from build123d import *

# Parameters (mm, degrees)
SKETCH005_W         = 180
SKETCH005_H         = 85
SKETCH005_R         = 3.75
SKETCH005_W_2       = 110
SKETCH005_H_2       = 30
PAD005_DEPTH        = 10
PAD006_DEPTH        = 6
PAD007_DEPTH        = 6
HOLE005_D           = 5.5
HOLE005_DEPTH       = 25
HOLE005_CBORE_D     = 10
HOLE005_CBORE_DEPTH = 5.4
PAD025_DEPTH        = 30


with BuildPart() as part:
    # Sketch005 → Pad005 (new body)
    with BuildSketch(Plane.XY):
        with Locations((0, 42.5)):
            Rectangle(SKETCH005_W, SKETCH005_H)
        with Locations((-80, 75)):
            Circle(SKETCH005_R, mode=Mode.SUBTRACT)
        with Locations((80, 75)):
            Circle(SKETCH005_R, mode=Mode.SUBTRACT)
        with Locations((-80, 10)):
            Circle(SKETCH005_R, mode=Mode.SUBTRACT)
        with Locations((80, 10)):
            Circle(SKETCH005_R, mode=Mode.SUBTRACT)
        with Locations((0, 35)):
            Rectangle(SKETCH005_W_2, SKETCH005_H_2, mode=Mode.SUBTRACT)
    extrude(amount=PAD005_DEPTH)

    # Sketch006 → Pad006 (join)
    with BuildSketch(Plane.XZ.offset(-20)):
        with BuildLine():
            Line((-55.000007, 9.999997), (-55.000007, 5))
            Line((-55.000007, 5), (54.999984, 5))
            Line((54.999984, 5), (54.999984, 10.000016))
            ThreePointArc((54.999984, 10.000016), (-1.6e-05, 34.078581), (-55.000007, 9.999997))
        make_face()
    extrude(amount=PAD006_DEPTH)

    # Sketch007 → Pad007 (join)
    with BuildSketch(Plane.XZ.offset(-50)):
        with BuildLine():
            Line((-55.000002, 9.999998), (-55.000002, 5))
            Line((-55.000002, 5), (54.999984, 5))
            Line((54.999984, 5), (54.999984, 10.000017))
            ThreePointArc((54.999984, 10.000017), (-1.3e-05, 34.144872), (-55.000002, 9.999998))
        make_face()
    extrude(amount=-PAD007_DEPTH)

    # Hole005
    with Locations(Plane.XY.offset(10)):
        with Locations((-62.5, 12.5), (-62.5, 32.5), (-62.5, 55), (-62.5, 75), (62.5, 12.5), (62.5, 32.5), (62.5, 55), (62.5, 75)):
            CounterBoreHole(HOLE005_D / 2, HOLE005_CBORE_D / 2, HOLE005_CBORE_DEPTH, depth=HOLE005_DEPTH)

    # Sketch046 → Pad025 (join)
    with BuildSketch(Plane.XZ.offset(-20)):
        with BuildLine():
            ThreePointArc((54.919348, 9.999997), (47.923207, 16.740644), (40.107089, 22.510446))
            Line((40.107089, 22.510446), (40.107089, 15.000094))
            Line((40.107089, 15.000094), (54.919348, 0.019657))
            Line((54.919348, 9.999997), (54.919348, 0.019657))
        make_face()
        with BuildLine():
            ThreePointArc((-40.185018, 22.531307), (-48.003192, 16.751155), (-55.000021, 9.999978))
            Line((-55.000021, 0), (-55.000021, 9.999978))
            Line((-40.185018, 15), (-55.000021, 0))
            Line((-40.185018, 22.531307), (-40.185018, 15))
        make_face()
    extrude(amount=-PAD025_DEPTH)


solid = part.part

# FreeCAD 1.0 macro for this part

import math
import FreeCAD as App
import Part
import Sketcher
from FreeCAD import Vector


def add_polygon(sketch, points):
    """Adds a closed chain of lines whose ends are joined by coincident constraints."""
    first, n = sketch.GeometryCount, len(points)
    for a, b in zip(points, points[1:] + points[:1]):
        sketch.addGeometry(Part.LineSegment(App.Vector(*a, 0), App.Vector(*b, 0)), False)
    for i in range(n):
        sketch.addConstraint(Sketcher.Constraint("Coincident", first + i, 2, first + (i + 1) % n, 1))

doc = App.newDocument("Part")
body = doc.addObject("PartDesign::Body", "Body")

# Sketch on XY plane
sketch1 = doc.addObject("Sketcher::SketchObject", "Sketch")
body.addObject(sketch1)
sketch1.AttachmentSupport = (doc.XY_Plane, [""])
sketch1.MapMode = "FlatFace"
add_polygon(sketch1, [(-90, 85), (-90, 0), (90, 0), (90, 85)])  # lines 0-3
sketch1.addGeometry(Part.Circle(Vector(-80, 10, 0), Vector(0, 0, 1), 3.8), False)  # 4
sketch1.addGeometry(Part.Circle(Vector(80, 10, 0), Vector(0, 0, 1), 3.8), False)  # 5
add_polygon(sketch1, [(55, 20), (-55, 20), (-55, 50), (55, 50)])  # lines 6-9
sketch1.addGeometry(Part.Circle(Vector(-80, 75, 0), Vector(0, 0, 1), 3.8), False)  # 10
sketch1.addGeometry(Part.Circle(Vector(80, 75, 0), Vector(0, 0, 1), 3.8), False)  # 11
sketch1.addConstraint([
    Sketcher.Constraint("Vertical", 0),
    Sketcher.Constraint("Horizontal", 1),
    Sketcher.Constraint("Vertical", 2),
    Sketcher.Constraint("Horizontal", 3),
    Sketcher.Constraint("Horizontal", 6),
    Sketcher.Constraint("Vertical", 7),
    Sketcher.Constraint("Horizontal", 8),
    Sketcher.Constraint("Vertical", 9),
    Sketcher.Constraint("Equal", 4, 5),
    Sketcher.Constraint("Equal", 5, 10),
    Sketcher.Constraint("Equal", 10, 11),
    Sketcher.Constraint("Symmetric", 0, 2, 1, 2, -1, 1),
    Sketcher.Constraint("Symmetric", 4, 3, 5, 3, -2),
    Sketcher.Constraint("Symmetric", 10, 3, 11, 3, -2),
    Sketcher.Constraint("Vertical", 4, 3, 10, 3),
    Sketcher.Constraint("Diameter", 4, 7.5),
    Sketcher.Constraint("DistanceX", 1, 1, 1, 2, 180.0),
    Sketcher.Constraint("DistanceX", 6, 2, 6, 1, 110.0),
    Sketcher.Constraint("DistanceY", 0, 2, 0, 1, 85.0),
    Sketcher.Constraint("DistanceY", 7, 1, 7, 2, 30.0),
    Sketcher.Constraint("DistanceX", 4, 3, -1, 1, 80.0),
    Sketcher.Constraint("DistanceY", -1, 1, 4, 3, 10.0),
    Sketcher.Constraint("DistanceY", -1, 1, 10, 3, 75.0),
    Sketcher.Constraint("DistanceX", 6, 2, -1, 1, 55.0),
    Sketcher.Constraint("DistanceY", -1, 1, 6, 2, 20.0),
])
pad1 = doc.addObject("PartDesign::Pad", "Pad")
body.addObject(pad1)
pad1.Profile = sketch1
pad1.Length = 10

# Sketch on XZ plane
sketch2 = doc.addObject("Sketcher::SketchObject", "Sketch001")
body.addObject(sketch2)
sketch2.AttachmentSupport = (doc.XZ_Plane, [""])
sketch2.MapMode = "FlatFace"
sketch2.AttachmentOffset = App.Placement(Vector(0, 0, -20), App.Rotation())
sketch2.addGeometry([
    Part.LineSegment(Vector(-55, 10, 0), Vector(-55, 5, 0)),
    Part.LineSegment(Vector(-55, 5, 0), Vector(55, 5, 0)),
    Part.LineSegment(Vector(55, 5, 0), Vector(55, 10, 0)),
    Part.ArcOfCircle(Part.Circle(Vector(0, -40.8, 0), Vector(0, 0, 1), 74.9), math.radians(43), math.radians(137)),
], False)
sketch2.addConstraint([
    Sketcher.Constraint("Coincident", 0, 2, 1, 1),
    Sketcher.Constraint("Coincident", 1, 2, 2, 1),
    Sketcher.Constraint("Coincident", 2, 2, 3, 1),
    Sketcher.Constraint("Coincident", 3, 2, 0, 1),
    Sketcher.Constraint("Vertical", 0),
    Sketcher.Constraint("Horizontal", 1),
    Sketcher.Constraint("Vertical", 2),
    Sketcher.Constraint("DistanceY", -1, 1, 0, 2, 5.0),
    Sketcher.Constraint("Radius", 3, 74.854457),
    Sketcher.Constraint("DistanceX", 1, 1, 1, 2, 109.999991),
    Sketcher.Constraint("DistanceY", 0, 2, 0, 1, 4.999997),
    Sketcher.Constraint("DistanceY", 2, 1, 2, 2, 5.000016),
    Sketcher.Constraint("DistanceX", 0, 2, -1, 1, 55.000007),
])
pad2 = doc.addObject("PartDesign::Pad", "Pad001")
body.addObject(pad2)
pad2.Profile = sketch2
pad2.Length = 6

# Sketch on XZ plane
sketch3 = doc.addObject("Sketcher::SketchObject", "Sketch002")
body.addObject(sketch3)
sketch3.AttachmentSupport = (doc.XZ_Plane, [""])
sketch3.MapMode = "FlatFace"
sketch3.AttachmentOffset = App.Placement(Vector(0, 0, -50), App.Rotation())
sketch3.addGeometry([
    Part.LineSegment(Vector(-55, 10, 0), Vector(-55, 5, 0)),
    Part.LineSegment(Vector(-55, 5, 0), Vector(55, 5, 0)),
    Part.LineSegment(Vector(55, 5, 0), Vector(55, 10, 0)),
    Part.ArcOfCircle(Part.Circle(Vector(0, -40.6, 0), Vector(0, 0, 1), 74.7), math.radians(43), math.radians(137)),
], False)
sketch3.addConstraint([
    Sketcher.Constraint("Coincident", 0, 2, 1, 1),
    Sketcher.Constraint("Coincident", 1, 2, 2, 1),
    Sketcher.Constraint("Coincident", 2, 2, 3, 1),
    Sketcher.Constraint("Coincident", 3, 2, 0, 1),
    Sketcher.Constraint("Vertical", 0),
    Sketcher.Constraint("Horizontal", 1),
    Sketcher.Constraint("Vertical", 2),
    Sketcher.Constraint("PointOnObject", 3, 3, -2),
    Sketcher.Constraint("DistanceY", -1, 1, 0, 2, 5.0),
    Sketcher.Constraint("DistanceY", -1, 1, 3, 2, 9.999998),
    Sketcher.Constraint("DistanceX", 0, 2, 3, 3, 55.000002),
    Sketcher.Constraint("Radius", 3, 74.715137),
    Sketcher.Constraint("DistanceX", 1, 1, 1, 2, 109.999986),
])
pad3 = doc.addObject("PartDesign::Pad", "Pad002")
body.addObject(pad3)
pad3.Profile = sketch3
pad3.Length = 6
pad3.Reversed = True

# Sketch on XY plane
sketch4 = doc.addObject("Sketcher::SketchObject", "Sketch003")
body.addObject(sketch4)
sketch4.AttachmentSupport = (doc.XY_Plane, [""])
sketch4.MapMode = "FlatFace"
sketch4.AttachmentOffset = App.Placement(Vector(0, 0, 10), App.Rotation())
sketch4.addGeometry([
    Part.Circle(Vector(-62.5, 12.5, 0), Vector(0, 0, 1), 2.8),  # 0
    Part.Circle(Vector(-62.5, 32.5, 0), Vector(0, 0, 1), 2.8),  # 1
    Part.Circle(Vector(-62.5, 55, 0), Vector(0, 0, 1), 2.8),  # 2
    Part.Circle(Vector(-62.5, 75, 0), Vector(0, 0, 1), 2.8),  # 3
    Part.Circle(Vector(62.5, 12.5, 0), Vector(0, 0, 1), 2.8),  # 4
    Part.Circle(Vector(62.5, 32.5, 0), Vector(0, 0, 1), 2.8),  # 5
    Part.Circle(Vector(62.5, 55, 0), Vector(0, 0, 1), 2.8),  # 6
    Part.Circle(Vector(62.5, 75, 0), Vector(0, 0, 1), 2.8),  # 7
], False)
sketch4.addConstraint([
    Sketcher.Constraint("Equal", 0, 1),
    Sketcher.Constraint("Equal", 1, 2),
    Sketcher.Constraint("Equal", 2, 3),
    Sketcher.Constraint("Equal", 3, 4),
    Sketcher.Constraint("Equal", 4, 5),
    Sketcher.Constraint("Equal", 5, 6),
    Sketcher.Constraint("Equal", 6, 7),
    Sketcher.Constraint("Symmetric", 0, 3, 4, 3, -2),
    Sketcher.Constraint("Symmetric", 1, 3, 5, 3, -2),
    Sketcher.Constraint("Symmetric", 2, 3, 6, 3, -2),
    Sketcher.Constraint("Symmetric", 3, 3, 7, 3, -2),
    Sketcher.Constraint("Vertical", 0, 3, 1, 3),
    Sketcher.Constraint("Vertical", 1, 3, 2, 3),
    Sketcher.Constraint("Vertical", 2, 3, 3, 3),
    Sketcher.Constraint("Diameter", 0, 5.5),
    Sketcher.Constraint("DistanceY", -1, 1, 2, 3, 55.0),
    Sketcher.Constraint("DistanceY", -1, 1, 3, 3, 75.0),
    Sketcher.Constraint("DistanceY", 0, 3, 1, 3, 20.0),
    Sketcher.Constraint("DistanceX", 0, 3, 4, 3, 125.0),
    Sketcher.Constraint("DistanceY", -1, 1, 0, 3, 12.5),
])
doc.recompute()
hole = doc.addObject("PartDesign::Hole", "Hole")
body.addObject(hole)
hole.Profile = sketch4
hole.ThreadType = "None"
hole.Diameter = 5.5
hole.DepthType = "Dimension"
hole.Depth = 25
hole.DrillPoint = "Flat"
hole.HoleCutType = "Counterbore"
hole.HoleCutDiameter = 10
hole.HoleCutDepth = 5.4

# Sketch on XZ plane
sketch5 = doc.addObject("Sketcher::SketchObject", "Sketch004")
body.addObject(sketch5)
sketch5.AttachmentSupport = (doc.XZ_Plane, [""])
sketch5.MapMode = "FlatFace"
sketch5.AttachmentOffset = App.Placement(Vector(0, 0, -20), App.Rotation())
sketch5.addGeometry([
    Part.ArcOfCircle(Part.Circle(Vector(0, -40, 0), Vector(0, 0, 1), 74), math.radians(42.32), math.radians(57.32)),  # 0
    Part.LineSegment(Vector(40, 23, 0), Vector(40, 15, 0)),  # 1
    Part.LineSegment(Vector(40, 15, 0), Vector(55, 0, 0)),  # 2
    Part.LineSegment(Vector(55, 0, 0), Vector(55, 10, 0)),  # 3
    Part.ArcOfCircle(Part.Circle(Vector(0, -40, 0), Vector(0, 0, 1), 74), math.radians(122.73), math.radians(137.73)),  # 4
    Part.LineSegment(Vector(-55, 10, 0), Vector(-55, 0, 0)),  # 5
    Part.LineSegment(Vector(-55, 0, 0), Vector(-40, 15, 0)),  # 6
    Part.LineSegment(Vector(-40, 15, 0), Vector(-40, 23, 0)),  # 7
], False)
sketch5.addConstraint([
    Sketcher.Constraint("Coincident", 0, 2, 1, 1),
    Sketcher.Constraint("Coincident", 1, 2, 2, 1),
    Sketcher.Constraint("Coincident", 2, 2, 3, 1),
    Sketcher.Constraint("Coincident", 3, 2, 0, 1),
    Sketcher.Constraint("Coincident", 4, 2, 5, 1),
    Sketcher.Constraint("Coincident", 5, 2, 6, 1),
    Sketcher.Constraint("Coincident", 6, 2, 7, 1),
    Sketcher.Constraint("Coincident", 7, 2, 4, 1),
    Sketcher.Constraint("Vertical", 1),
    Sketcher.Constraint("Vertical", 3),
    Sketcher.Constraint("Vertical", 5),
    Sketcher.Constraint("Vertical", 7),
    Sketcher.Constraint("PointOnObject", 5, 2, -1),
    Sketcher.Constraint("DistanceY", -1, 1, 6, 2, 15.0),
    Sketcher.Constraint("DistanceY", 4, 3, 4, 2, 49.999999),
    Sketcher.Constraint("Radius", 4, 74.330369),
    Sketcher.Constraint("Radius", 0, 74.270696),
    Sketcher.Constraint("DistanceY", 3, 1, 3, 2, 9.98034),
    Sketcher.Constraint("DistanceY", 1, 2, 1, 1, 7.510352),
    Sketcher.Constraint("DistanceY", 5, 2, 5, 1, 9.999978),
    Sketcher.Constraint("DistanceY", 7, 1, 7, 2, 7.531307),
    Sketcher.Constraint("DistanceY", 0, 3, -1, 1, 40.00001),
    Sketcher.Constraint("DistanceX", -1, 1, 0, 2, 40.107089),
    Sketcher.Constraint("DistanceX", 4, 2, -1, 1, 55.000021),
    Sketcher.Constraint("DistanceX", 1, 2, 2, 2, 14.812259),
    Sketcher.Constraint("DistanceY", 2, 2, 0, 2, 22.490789),
])
pad4 = doc.addObject("PartDesign::Pad", "Pad003")
body.addObject(pad4)
pad4.Profile = sketch5
pad4.Length = 30
pad4.Reversed = True

doc.recompute()
